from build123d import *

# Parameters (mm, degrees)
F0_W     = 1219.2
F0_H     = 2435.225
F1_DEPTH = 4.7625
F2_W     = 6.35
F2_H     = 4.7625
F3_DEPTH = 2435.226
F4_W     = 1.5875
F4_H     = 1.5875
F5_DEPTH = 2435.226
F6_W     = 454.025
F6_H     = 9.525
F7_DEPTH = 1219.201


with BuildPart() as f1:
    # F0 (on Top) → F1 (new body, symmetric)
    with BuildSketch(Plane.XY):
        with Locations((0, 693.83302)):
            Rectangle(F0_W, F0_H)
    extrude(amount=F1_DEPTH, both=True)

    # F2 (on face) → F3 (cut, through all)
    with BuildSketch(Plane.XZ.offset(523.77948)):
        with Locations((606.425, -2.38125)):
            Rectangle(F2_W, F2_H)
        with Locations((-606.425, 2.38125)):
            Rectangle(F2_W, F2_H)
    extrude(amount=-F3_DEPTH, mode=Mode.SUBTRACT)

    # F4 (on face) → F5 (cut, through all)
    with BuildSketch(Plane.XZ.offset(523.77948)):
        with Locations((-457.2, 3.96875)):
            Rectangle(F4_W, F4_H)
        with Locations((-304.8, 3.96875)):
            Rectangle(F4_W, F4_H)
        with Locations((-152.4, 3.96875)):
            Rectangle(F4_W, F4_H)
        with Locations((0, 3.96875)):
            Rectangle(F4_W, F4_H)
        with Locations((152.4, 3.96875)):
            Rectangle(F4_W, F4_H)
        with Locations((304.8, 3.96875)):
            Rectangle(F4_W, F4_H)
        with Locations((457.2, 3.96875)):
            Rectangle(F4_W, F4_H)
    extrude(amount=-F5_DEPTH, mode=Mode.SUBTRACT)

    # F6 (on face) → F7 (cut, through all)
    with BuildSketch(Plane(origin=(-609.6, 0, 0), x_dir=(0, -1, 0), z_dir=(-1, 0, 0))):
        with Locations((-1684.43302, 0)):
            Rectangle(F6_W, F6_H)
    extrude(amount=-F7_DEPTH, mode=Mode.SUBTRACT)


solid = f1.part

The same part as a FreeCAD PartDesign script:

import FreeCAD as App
import Part
import Sketcher
from FreeCAD import Vector
Q = App.Units.Quantity

doc = App.newDocument("Part")
body = doc.addObject("PartDesign::Body", "Body")

# Sketch on XY plane
sketch1 = body.newObject("Sketcher::SketchObject", "Sketch")
sketch1.AttachmentSupport = (doc.getObject("XY_Plane"), [""])
sketch1.MapMode = "FlatFace"
sketch1.addGeometry([
    Part.LineSegment(Vector(-610, 1911, 0), Vector(-610, -524, 0)),
    Part.LineSegment(Vector(-610, -524, 0), Vector(610, -524, 0)),
    Part.LineSegment(Vector(610, -524, 0), Vector(610, 1911, 0)),
    Part.LineSegment(Vector(610, 1911, 0), Vector(-610, 1911, 0)),
], False)
sketch1.addConstraint([
    Sketcher.Constraint("Coincident", 0, 2, 1, 1),
    Sketcher.Constraint("Coincident", 1, 2, 2, 1),
    Sketcher.Constraint("Coincident", 2, 2, 3, 1),
    Sketcher.Constraint("Coincident", 3, 2, 0, 1),
    Sketcher.Constraint("Vertical", 0),
    Sketcher.Constraint("Horizontal", 1),
    Sketcher.Constraint("Vertical", 2),
    Sketcher.Constraint("Horizontal", 3),
    Sketcher.Constraint("DistanceX", 1, 1, 1, 2, Q("48 in")),
    Sketcher.Constraint("DistanceX", 0, 2, -1, 1, Q("24 in")),
    Sketcher.Constraint("DistanceY", 0, 2, 0, 1, Q("95.875 in")),
    Sketcher.Constraint("DistanceY", 0, 2, -1, 1, 523.77948),
])
pad1 = body.newObject("PartDesign::Pad", "Pad")
pad1.Profile = sketch1
pad1.Length = Q("0.375 in")
pad1.Midplane = True

# Sketch on XZ plane
sketch2 = body.newObject("Sketcher::SketchObject", "Sketch001")
sketch2.AttachmentSupport = (doc.getObject("XZ_Plane"), [""])
sketch2.MapMode = "FlatFace"
sketch2.AttachmentOffset = App.Placement(Vector(0, 0, 523.77948), App.Rotation())
sketch2.addGeometry([
    Part.LineSegment(Vector(603.2, 0, 0), Vector(603.2, -4.8, 0)),  # 0
    Part.LineSegment(Vector(603.2, -4.8, 0), Vector(609.6, -4.8, 0)),  # 1
    Part.LineSegment(Vector(609.6, -4.8, 0), Vector(609.6, 0, 0)),  # 2
    Part.LineSegment(Vector(609.6, 0, 0), Vector(603.2, 0, 0)),  # 3
    Part.LineSegment(Vector(-609.6, 4.8, 0), Vector(-609.6, 0, 0)),  # 4
    Part.LineSegment(Vector(-609.6, 0, 0), Vector(-603.2, 0, 0)),  # 5
    Part.LineSegment(Vector(-603.2, 0, 0), Vector(-603.2, 4.8, 0)),  # 6
    Part.LineSegment(Vector(-603.2, 4.8, 0), Vector(-609.6, 4.8, 0)),  # 7
], False)
sketch2.addConstraint([
    Sketcher.Constraint("Coincident", 0, 2, 1, 1),
    Sketcher.Constraint("Coincident", 1, 2, 2, 1),
    Sketcher.Constraint("Coincident", 2, 2, 3, 1),
    Sketcher.Constraint("Coincident", 3, 2, 0, 1),
    Sketcher.Constraint("Coincident", 4, 2, 5, 1),
    Sketcher.Constraint("Coincident", 5, 2, 6, 1),
    Sketcher.Constraint("Coincident", 6, 2, 7, 1),
    Sketcher.Constraint("Coincident", 7, 2, 4, 1),
    Sketcher.Constraint("Vertical", 0),
    Sketcher.Constraint("Horizontal", 1),
    Sketcher.Constraint("Vertical", 2),
    Sketcher.Constraint("Horizontal", 3),
    Sketcher.Constraint("Vertical", 4),
    Sketcher.Constraint("Horizontal", 5),
    Sketcher.Constraint("Vertical", 6),
    Sketcher.Constraint("Horizontal", 7),
    Sketcher.Constraint("Symmetric", 2, 2, 4, 2, -1, 1),
    Sketcher.Constraint("Symmetric", 0, 2, 6, 2, -1, 1),
    Sketcher.Constraint("PointOnObject", 2, 2, -1),
    Sketcher.Constraint("DistanceX", -1, 1, 1, 2, Q("24 in")),
    Sketcher.Constraint("DistanceX", 1, 1, 1, 2, Q("0.25 in")),
    Sketcher.Constraint("DistanceY", 0, 2, 0, 1, Q("0.1875 in")),
])
pocket1 = body.newObject("PartDesign::Pocket", "Pocket")
pocket1.Profile = sketch2
pocket1.Type = "ThroughAll"

# Sketch on XZ plane
sketch3 = body.newObject("Sketcher::SketchObject", "Sketch002")
sketch3.AttachmentSupport = (doc.getObject("XZ_Plane"), [""])
sketch3.MapMode = "FlatFace"
sketch3.AttachmentOffset = App.Placement(Vector(0, 0, 523.77948), App.Rotation())
sketch3.addGeometry([
    Part.LineSegment(Vector(-458, 4.8, 0), Vector(-458, 3.2, 0)),  # 0
    Part.LineSegment(Vector(-458, 3.2, 0), Vector(-456.4, 3.2, 0)),  # 1
    Part.LineSegment(Vector(-456.4, 3.2, 0), Vector(-456.4, 4.8, 0)),  # 2
    Part.LineSegment(Vector(-456.4, 4.8, 0), Vector(-458, 4.8, 0)),  # 3
    Part.LineSegment(Vector(-305.6, 4.8, 0), Vector(-305.6, 3.2, 0)),  # 4
    Part.LineSegment(Vector(-305.6, 3.2, 0), Vector(-304, 3.2, 0)),  # 5
    Part.LineSegment(Vector(-304, 3.2, 0), Vector(-304, 4.8, 0)),  # 6
    Part.LineSegment(Vector(-304, 4.8, 0), Vector(-305.6, 4.8, 0)),  # 7
    Part.LineSegment(Vector(-153.2, 4.8, 0), Vector(-153.2, 3.2, 0)),  # 8
    Part.LineSegment(Vector(-153.2, 3.2, 0), Vector(-151.6, 3.2, 0)),  # 9
    Part.LineSegment(Vector(-151.6, 3.2, 0), Vector(-151.6, 4.8, 0)),  # 10
    Part.LineSegment(Vector(-151.6, 4.8, 0), Vector(-153.2, 4.8, 0)),  # 11
    Part.LineSegment(Vector(-0.8, 4.8, 0), Vector(-0.8, 3.2, 0)),  # 12
    Part.LineSegment(Vector(-0.8, 3.2, 0), Vector(0.8, 3.2, 0)),  # 13
    Part.LineSegment(Vector(0.8, 3.2, 0), Vector(0.8, 4.8, 0)),  # 14
    Part.LineSegment(Vector(0.8, 4.8, 0), Vector(-0.8, 4.8, 0)),  # 15
    Part.LineSegment(Vector(151.6, 4.8, 0), Vector(151.6, 3.2, 0)),  # 16
    Part.LineSegment(Vector(151.6, 3.2, 0), Vector(153.2, 3.2, 0)),  # 17
    Part.LineSegment(Vector(153.2, 3.2, 0), Vector(153.2, 4.8, 0)),  # 18
    Part.LineSegment(Vector(153.2, 4.8, 0), Vector(151.6, 4.8, 0)),  # 19
    Part.LineSegment(Vector(304, 4.8, 0), Vector(304, 3.2, 0)),  # 20
    Part.LineSegment(Vector(304, 3.2, 0), Vector(305.6, 3.2, 0)),  # 21
    Part.LineSegment(Vector(305.6, 3.2, 0), Vector(305.6, 4.8, 0)),  # 22
    Part.LineSegment(Vector(305.6, 4.8, 0), Vector(304, 4.8, 0)),  # 23
    Part.LineSegment(Vector(456.4, 4.8, 0), Vector(456.4, 3.2, 0)),  # 24
    Part.LineSegment(Vector(456.4, 3.2, 0), Vector(458, 3.2, 0)),  # 25
    Part.LineSegment(Vector(458, 3.2, 0), Vector(458, 4.8, 0)),  # 26
    Part.LineSegment(Vector(458, 4.8, 0), Vector(456.4, 4.8, 0)),  # 27
], False)
sketch3.addConstraint([
    Sketcher.Constraint("Coincident", 0, 2, 1, 1),
    Sketcher.Constraint("Coincident", 1, 2, 2, 1),
    Sketcher.Constraint("Coincident", 2, 2, 3, 1),
    Sketcher.Constraint("Coincident", 3, 2, 0, 1),
    Sketcher.Constraint("Coincident", 4, 2, 5, 1),
    Sketcher.Constraint("Coincident", 5, 2, 6, 1),
    Sketcher.Constraint("Coincident", 6, 2, 7, 1),
    Sketcher.Constraint("Coincident", 7, 2, 4, 1),
    Sketcher.Constraint("Coincident", 8, 2, 9, 1),
    Sketcher.Constraint("Coincident", 9, 2, 10, 1),
    Sketcher.Constraint("Coincident", 10, 2, 11, 1),
    Sketcher.Constraint("Coincident", 11, 2, 8, 1),
    Sketcher.Constraint("Coincident", 12, 2, 13, 1),
    Sketcher.Constraint("Coincident", 13, 2, 14, 1),
    Sketcher.Constraint("Coincident", 14, 2, 15, 1),
    Sketcher.Constraint("Coincident", 15, 2, 12, 1),
    Sketcher.Constraint("Coincident", 16, 2, 17, 1),
    Sketcher.Constraint("Coincident", 17, 2, 18, 1),
    Sketcher.Constraint("Coincident", 18, 2, 19, 1),
    Sketcher.Constraint("Coincident", 19, 2, 16, 1),
    Sketcher.Constraint("Coincident", 20, 2, 21, 1),
    Sketcher.Constraint("Coincident", 21, 2, 22, 1),
    Sketcher.Constraint("Coincident", 22, 2, 23, 1),
    Sketcher.Constraint("Coincident", 23, 2, 20, 1),
    Sketcher.Constraint("Coincident", 24, 2, 25, 1),
    Sketcher.Constraint("Coincident", 25, 2, 26, 1),
    Sketcher.Constraint("Coincident", 26, 2, 27, 1),
    Sketcher.Constraint("Coincident", 27, 2, 24, 1),
    Sketcher.Constraint("Vertical", 0),
    Sketcher.Constraint("Horizontal", 1),
    Sketcher.Constraint("Vertical", 2),
    Sketcher.Constraint("Horizontal", 3),
    Sketcher.Constraint("Vertical", 4),
    Sketcher.Constraint("Horizontal", 5),
    Sketcher.Constraint("Vertical", 6),
    Sketcher.Constraint("Horizontal", 7),
    Sketcher.Constraint("Vertical", 8),
    Sketcher.Constraint("Horizontal", 9),
    Sketcher.Constraint("Vertical", 10),
    Sketcher.Constraint("Horizontal", 11),
    Sketcher.Constraint("Vertical", 12),
    Sketcher.Constraint("Horizontal", 13),
    Sketcher.Constraint("Vertical", 14),
    Sketcher.Constraint("Horizontal", 15),
    Sketcher.Constraint("Vertical", 16),
    Sketcher.Constraint("Horizontal", 17),
    Sketcher.Constraint("Vertical", 18),
    Sketcher.Constraint("Horizontal", 19),
    Sketcher.Constraint("Vertical", 20),
    Sketcher.Constraint("Horizontal", 21),
    Sketcher.Constraint("Vertical", 22),
    Sketcher.Constraint("Horizontal", 23),
    Sketcher.Constraint("Vertical", 24),
    Sketcher.Constraint("Horizontal", 25),
    Sketcher.Constraint("Vertical", 26),
    Sketcher.Constraint("Horizontal", 27),
    Sketcher.Constraint("Symmetric", 9, 2, 16, 2, -2),
    Sketcher.Constraint("Symmetric", 11, 2, 18, 2, -2),
    Sketcher.Constraint("Symmetric", 5, 2, 20, 2, -2),
    Sketcher.Constraint("Symmetric", 7, 2, 22, 2, -2),
    Sketcher.Constraint("Symmetric", 1, 2, 24, 2, -2),
    Sketcher.Constraint("Symmetric", 3, 2, 26, 2, -2),
    Sketcher.Constraint("Horizontal", 1, 2, 4, 2),
    Sketcher.Constraint("Horizontal", 3, 2, 6, 2),
    Sketcher.Constraint("Horizontal", 5, 2, 8, 2),
    Sketcher.Constraint("Horizontal", 7, 2, 10, 2),
    Sketcher.Constraint("Horizontal", 9, 2, 12, 2),
    Sketcher.Constraint("Horizontal", 11, 2, 14, 2),
    Sketcher.Constraint("Equal", 3, 5),
    Sketcher.Constraint("Equal", 7, 9),
    Sketcher.Constraint("Equal", 11, 13),
    Sketcher.Constraint("Equal", 27, 0),
    Sketcher.Constraint("DistanceX", 0, 2, 4, 2, Q("6 in")),
    Sketcher.Constraint("DistanceX", 4, 2, 8, 2, Q("6 in")),
    Sketcher.Constraint("DistanceX", 8, 2, 12, 2, Q("6 in")),
    Sketcher.Constraint("DistanceX", 12, 2, 16, 2, Q("6 in")),
    Sketcher.Constraint("DistanceX", 1, 1, 1, 2, Q("0.0625 in")),
    Sketcher.Constraint("DistanceY", -1, 1, 0, 2, Q("0.125 in")),
])
pocket2 = body.newObject("PartDesign::Pocket", "Pocket001")
pocket2.Profile = sketch3
pocket2.Type = "ThroughAll"

# Sketch on YZ plane
sketch4 = body.newObject("Sketcher::SketchObject", "Sketch003")
sketch4.AttachmentSupport = (doc.getObject("YZ_Plane"), [""])
sketch4.MapMode = "FlatFace"
sketch4.AttachmentOffset = App.Placement(Vector(0, 0, -24 * 25.4), App.Rotation())
sketch4.addGeometry([
    Part.LineSegment(Vector(1911, 5, 0), Vector(1911, -5, 0)),
    Part.LineSegment(Vector(1911, -5, 0), Vector(1457, -5, 0)),
    Part.LineSegment(Vector(1457, -5, 0), Vector(1457, 5, 0)),
    Part.LineSegment(Vector(1457, 5, 0), Vector(1911, 5, 0)),
], False)
sketch4.addConstraint([
    Sketcher.Constraint("Coincident", 0, 2, 1, 1),
    Sketcher.Constraint("Coincident", 1, 2, 2, 1),
    Sketcher.Constraint("Coincident", 2, 2, 3, 1),
    Sketcher.Constraint("Coincident", 3, 2, 0, 1),
    Sketcher.Constraint("Vertical", 0),
    Sketcher.Constraint("Horizontal", 1),
    Sketcher.Constraint("Vertical", 2),
    Sketcher.Constraint("Horizontal", 3),
    Sketcher.Constraint("DistanceX", 1, 2, 1, 1, Q("17.875 in")),
    Sketcher.Constraint("DistanceY", 0, 2, 0, 1, Q("0.375 in")),
    Sketcher.Constraint("DistanceY", 0, 2, -1, 1, Q("0.1875 in")),
    Sketcher.Constraint("DistanceX", -1, 1, 0, 2, 1911.44552),
])
pocket3 = body.newObject("PartDesign::Pocket", "Pocket002")
pocket3.Profile = sketch4
pocket3.Type = "ThroughAll"
pocket3.Reversed = True

doc.recompute()
